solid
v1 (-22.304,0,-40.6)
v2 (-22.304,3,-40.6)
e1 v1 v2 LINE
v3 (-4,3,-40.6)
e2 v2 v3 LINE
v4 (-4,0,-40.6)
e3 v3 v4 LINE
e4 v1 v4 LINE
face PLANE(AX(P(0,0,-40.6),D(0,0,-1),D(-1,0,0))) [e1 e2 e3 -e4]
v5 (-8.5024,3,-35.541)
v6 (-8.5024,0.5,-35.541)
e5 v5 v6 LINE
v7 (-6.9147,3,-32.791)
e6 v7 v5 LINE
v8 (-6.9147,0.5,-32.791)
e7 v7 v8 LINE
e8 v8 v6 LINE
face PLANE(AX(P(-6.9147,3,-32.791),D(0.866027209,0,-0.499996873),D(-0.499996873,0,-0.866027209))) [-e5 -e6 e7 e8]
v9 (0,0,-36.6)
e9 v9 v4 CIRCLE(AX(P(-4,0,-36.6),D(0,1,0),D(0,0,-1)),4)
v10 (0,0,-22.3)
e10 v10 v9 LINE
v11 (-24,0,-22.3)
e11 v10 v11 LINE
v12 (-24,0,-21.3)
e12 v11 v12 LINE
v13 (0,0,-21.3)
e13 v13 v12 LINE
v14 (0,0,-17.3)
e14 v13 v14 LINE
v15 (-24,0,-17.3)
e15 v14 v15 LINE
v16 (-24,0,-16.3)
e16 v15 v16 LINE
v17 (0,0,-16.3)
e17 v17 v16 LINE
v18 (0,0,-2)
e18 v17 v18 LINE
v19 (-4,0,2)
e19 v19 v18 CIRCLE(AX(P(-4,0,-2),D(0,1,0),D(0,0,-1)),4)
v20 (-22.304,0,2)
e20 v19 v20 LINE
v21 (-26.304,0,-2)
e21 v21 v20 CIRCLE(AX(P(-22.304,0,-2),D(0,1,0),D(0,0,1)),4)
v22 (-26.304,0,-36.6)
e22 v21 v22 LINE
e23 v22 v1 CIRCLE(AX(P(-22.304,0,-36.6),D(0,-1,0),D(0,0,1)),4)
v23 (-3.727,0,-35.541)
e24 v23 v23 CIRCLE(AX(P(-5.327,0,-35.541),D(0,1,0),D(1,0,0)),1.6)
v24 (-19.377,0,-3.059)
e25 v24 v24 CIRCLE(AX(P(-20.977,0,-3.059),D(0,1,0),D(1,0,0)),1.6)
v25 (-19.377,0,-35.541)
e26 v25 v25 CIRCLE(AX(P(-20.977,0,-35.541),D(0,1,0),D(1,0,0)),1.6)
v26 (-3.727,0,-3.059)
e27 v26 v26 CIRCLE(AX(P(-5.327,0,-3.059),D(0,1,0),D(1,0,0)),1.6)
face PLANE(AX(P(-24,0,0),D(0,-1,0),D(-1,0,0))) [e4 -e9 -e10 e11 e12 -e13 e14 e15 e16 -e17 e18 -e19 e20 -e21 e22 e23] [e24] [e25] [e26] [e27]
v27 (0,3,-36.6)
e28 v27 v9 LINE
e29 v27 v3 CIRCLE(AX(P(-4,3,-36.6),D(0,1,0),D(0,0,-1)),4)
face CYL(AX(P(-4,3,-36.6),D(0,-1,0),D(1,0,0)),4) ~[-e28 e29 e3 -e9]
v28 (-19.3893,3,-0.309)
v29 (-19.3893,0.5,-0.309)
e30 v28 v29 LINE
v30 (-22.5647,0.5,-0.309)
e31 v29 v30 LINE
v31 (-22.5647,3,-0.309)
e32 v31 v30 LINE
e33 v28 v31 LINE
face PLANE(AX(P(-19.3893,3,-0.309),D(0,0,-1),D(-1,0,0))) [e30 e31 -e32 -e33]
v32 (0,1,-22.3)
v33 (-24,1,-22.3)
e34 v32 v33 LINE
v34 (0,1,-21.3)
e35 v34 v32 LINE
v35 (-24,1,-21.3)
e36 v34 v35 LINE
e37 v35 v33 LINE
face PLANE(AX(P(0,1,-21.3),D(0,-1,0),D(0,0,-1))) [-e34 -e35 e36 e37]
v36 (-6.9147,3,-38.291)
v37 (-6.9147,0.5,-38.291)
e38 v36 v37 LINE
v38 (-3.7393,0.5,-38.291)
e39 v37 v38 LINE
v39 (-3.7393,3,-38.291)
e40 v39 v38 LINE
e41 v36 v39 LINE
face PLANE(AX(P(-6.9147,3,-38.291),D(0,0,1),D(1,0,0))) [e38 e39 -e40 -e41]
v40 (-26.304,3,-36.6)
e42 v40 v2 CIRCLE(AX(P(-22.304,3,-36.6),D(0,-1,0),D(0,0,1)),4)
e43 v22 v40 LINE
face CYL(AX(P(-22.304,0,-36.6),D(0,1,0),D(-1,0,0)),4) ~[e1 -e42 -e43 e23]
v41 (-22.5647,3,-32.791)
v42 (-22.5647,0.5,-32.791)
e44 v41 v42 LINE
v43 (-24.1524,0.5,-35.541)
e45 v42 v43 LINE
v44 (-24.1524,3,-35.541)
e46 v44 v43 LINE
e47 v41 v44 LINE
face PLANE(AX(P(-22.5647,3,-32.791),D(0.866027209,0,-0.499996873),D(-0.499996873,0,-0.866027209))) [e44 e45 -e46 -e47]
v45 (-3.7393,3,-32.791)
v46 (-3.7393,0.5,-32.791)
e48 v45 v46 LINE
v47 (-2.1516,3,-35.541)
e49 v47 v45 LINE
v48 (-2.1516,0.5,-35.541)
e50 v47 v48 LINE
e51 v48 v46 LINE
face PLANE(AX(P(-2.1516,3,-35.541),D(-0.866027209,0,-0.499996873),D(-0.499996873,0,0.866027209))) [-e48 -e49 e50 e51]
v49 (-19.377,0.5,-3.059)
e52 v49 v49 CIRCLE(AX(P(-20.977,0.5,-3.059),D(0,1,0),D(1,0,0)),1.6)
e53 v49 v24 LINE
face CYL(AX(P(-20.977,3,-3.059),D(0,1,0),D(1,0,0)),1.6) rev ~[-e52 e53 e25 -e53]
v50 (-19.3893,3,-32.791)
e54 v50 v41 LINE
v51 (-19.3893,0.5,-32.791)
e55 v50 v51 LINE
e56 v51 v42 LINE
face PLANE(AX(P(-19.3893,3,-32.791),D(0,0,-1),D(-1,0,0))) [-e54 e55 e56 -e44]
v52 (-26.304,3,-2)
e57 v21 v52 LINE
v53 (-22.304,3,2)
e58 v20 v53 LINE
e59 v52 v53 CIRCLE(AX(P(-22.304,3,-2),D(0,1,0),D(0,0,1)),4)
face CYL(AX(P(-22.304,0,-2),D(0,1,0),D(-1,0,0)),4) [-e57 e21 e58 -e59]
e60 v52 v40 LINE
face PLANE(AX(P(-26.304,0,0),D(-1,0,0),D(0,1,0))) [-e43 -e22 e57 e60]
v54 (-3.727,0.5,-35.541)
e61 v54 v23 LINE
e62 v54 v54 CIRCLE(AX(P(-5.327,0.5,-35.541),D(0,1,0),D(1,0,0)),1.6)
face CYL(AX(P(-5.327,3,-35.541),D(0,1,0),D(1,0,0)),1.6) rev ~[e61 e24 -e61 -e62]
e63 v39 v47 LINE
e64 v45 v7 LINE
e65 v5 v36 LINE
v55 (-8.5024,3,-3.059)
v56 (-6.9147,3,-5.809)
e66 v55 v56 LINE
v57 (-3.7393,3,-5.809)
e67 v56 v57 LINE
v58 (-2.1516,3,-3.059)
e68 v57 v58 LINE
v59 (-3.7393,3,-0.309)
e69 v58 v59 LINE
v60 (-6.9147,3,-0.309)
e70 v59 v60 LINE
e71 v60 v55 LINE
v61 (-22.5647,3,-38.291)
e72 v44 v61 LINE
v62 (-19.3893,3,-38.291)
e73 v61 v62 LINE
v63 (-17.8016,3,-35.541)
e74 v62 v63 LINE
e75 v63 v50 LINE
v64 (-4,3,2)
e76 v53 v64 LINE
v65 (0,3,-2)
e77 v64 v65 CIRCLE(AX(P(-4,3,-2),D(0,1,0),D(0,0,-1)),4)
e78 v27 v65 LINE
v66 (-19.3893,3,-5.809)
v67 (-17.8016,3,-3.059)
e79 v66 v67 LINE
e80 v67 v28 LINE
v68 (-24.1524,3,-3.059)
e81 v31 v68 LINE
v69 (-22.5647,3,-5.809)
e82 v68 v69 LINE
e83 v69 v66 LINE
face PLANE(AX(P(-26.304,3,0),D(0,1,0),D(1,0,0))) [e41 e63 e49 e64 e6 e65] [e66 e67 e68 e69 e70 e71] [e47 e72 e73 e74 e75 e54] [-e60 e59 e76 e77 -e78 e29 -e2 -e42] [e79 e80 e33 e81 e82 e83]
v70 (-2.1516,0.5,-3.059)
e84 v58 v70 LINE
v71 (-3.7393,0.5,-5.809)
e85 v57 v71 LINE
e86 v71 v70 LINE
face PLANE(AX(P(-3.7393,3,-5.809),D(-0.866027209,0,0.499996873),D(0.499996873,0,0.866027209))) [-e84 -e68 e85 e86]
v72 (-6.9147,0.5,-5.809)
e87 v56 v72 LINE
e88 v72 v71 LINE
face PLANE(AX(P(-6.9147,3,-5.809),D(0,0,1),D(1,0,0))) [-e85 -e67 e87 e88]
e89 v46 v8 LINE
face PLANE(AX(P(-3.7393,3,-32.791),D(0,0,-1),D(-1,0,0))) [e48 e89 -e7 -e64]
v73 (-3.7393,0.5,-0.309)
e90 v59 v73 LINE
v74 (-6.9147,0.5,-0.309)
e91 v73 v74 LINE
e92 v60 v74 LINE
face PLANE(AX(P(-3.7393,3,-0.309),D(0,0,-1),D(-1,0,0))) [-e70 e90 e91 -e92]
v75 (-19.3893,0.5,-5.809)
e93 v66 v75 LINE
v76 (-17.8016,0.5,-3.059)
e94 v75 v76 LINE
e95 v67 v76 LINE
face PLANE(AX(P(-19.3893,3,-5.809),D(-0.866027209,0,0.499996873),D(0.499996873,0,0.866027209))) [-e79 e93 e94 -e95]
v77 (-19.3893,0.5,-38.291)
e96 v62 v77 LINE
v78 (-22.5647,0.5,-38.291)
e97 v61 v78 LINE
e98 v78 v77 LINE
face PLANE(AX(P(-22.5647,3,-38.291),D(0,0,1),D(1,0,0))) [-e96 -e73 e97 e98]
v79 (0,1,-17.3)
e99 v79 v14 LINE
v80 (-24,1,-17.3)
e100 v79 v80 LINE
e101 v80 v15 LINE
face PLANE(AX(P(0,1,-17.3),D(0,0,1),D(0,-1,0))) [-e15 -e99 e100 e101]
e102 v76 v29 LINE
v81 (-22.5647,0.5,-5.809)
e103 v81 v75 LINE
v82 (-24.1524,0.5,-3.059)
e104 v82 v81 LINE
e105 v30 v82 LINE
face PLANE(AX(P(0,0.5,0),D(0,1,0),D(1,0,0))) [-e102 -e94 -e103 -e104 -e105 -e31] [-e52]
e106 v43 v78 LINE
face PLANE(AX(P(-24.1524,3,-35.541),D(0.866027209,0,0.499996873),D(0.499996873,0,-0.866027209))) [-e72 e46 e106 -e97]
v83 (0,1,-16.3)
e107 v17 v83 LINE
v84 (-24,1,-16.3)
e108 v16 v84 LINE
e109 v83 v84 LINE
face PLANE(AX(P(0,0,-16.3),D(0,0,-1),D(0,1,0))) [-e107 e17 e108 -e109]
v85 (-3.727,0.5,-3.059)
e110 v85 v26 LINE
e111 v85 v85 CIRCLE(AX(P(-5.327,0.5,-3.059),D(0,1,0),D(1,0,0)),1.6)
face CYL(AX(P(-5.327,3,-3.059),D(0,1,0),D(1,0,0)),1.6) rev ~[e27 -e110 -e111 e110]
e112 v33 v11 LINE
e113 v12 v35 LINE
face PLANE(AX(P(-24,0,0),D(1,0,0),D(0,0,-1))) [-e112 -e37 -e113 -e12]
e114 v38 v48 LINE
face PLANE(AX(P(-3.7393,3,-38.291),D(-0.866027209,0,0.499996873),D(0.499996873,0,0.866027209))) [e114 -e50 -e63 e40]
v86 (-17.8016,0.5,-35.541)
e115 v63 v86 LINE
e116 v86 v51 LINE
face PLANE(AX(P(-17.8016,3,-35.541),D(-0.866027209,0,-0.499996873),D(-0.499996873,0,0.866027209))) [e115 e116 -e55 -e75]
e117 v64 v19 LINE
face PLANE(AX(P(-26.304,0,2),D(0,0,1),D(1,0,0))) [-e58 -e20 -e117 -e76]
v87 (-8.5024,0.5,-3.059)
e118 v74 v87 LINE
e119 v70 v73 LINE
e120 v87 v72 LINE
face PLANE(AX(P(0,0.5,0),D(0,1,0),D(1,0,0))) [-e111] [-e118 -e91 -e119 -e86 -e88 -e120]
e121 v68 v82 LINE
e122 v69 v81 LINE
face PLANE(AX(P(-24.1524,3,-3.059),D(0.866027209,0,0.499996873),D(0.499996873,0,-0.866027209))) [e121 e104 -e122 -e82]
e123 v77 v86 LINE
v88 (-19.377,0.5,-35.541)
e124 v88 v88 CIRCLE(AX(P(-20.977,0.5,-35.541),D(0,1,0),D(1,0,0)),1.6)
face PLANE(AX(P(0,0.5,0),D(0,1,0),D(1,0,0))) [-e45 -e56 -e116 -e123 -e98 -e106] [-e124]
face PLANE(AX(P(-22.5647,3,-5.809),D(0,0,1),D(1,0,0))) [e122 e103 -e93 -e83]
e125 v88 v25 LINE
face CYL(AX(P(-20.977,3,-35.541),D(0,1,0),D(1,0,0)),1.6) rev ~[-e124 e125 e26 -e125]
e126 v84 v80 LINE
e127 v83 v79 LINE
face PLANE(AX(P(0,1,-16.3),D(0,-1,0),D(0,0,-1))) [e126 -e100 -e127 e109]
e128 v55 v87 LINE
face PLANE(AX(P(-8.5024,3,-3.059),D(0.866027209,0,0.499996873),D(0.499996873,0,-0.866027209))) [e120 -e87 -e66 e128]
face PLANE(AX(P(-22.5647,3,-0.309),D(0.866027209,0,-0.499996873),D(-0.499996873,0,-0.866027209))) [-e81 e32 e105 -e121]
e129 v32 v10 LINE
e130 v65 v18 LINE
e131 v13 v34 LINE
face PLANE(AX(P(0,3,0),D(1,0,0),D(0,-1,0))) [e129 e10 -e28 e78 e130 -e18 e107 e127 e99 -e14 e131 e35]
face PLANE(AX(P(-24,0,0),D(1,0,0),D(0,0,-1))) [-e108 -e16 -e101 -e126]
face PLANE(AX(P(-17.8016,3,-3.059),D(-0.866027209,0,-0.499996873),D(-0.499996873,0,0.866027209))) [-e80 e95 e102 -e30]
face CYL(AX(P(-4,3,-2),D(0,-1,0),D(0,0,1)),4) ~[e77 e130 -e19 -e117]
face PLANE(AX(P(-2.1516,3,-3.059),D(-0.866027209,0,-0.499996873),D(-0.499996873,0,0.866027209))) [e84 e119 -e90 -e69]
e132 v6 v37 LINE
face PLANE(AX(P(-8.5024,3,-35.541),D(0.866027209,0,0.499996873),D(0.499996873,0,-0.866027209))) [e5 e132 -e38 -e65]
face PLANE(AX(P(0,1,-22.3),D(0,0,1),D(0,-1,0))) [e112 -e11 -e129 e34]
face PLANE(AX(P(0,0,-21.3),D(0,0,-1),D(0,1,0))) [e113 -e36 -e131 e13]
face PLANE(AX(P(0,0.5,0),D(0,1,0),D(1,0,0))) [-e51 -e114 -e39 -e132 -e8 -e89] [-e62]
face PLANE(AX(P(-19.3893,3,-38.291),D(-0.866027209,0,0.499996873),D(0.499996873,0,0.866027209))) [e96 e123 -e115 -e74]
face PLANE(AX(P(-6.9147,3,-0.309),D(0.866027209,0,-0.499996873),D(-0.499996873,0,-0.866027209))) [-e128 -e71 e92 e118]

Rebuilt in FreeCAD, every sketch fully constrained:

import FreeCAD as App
import Part
import Sketcher

V = App.Vector
Q = App.Units.Quantity


def edges_at(feature, points):
    """Names of the edges that pass closest to the given points."""
    edges = feature.Shape.Edges
    near = lambda p: min(range(len(edges)), key=lambda i: edges[i].distToShape(Part.Vertex(*p))[0])
    return sorted({f"Edge{near(p) + 1}" for p in points})

doc = App.newDocument("Part")
body = doc.addObject("PartDesign::Body", "Body")

sketch1 = doc.addObject("Sketcher::SketchObject", "Sketch")
body.addObject(sketch1)
sketch1.AttachmentSupport = (doc.XZ_Plane, [""])
sketch1.MapMode = "FlatFace"
sketch1.addGeometry([
    Part.LineSegment(V(-26.304, 0, 0), V(0, 0, 0)),
    Part.LineSegment(V(0, 0, 0), V(0, -38.6, 0)),
    Part.LineSegment(V(0, -38.6, 0), V(-26.304, -38.6, 0)),
    Part.LineSegment(V(-26.304, -38.6, 0), V(-26.304, 0, 0)),
], False)
sketch1.addConstraint([
    Sketcher.Constraint("Coincident", 0, 2, 1, 1),
    Sketcher.Constraint("Coincident", 1, 2, 2, 1),
    Sketcher.Constraint("Coincident", 2, 2, 3, 1),
    Sketcher.Constraint("Coincident", 3, 2, 0, 1),
    Sketcher.Constraint("Horizontal", 0),
    Sketcher.Constraint("Vertical", 1),
    Sketcher.Constraint("Horizontal", 2),
    Sketcher.Constraint("Vertical", 3),
    Sketcher.Constraint("Coincident", 0, 2, -1, 1),
    Sketcher.Constraint("DistanceY", 1, 2, 1, 1, Q("38.6 mm")),
    Sketcher.Constraint("DistanceX", 0, 1, 0, 2, Q("26.304 mm")),
])
pad1 = doc.addObject("PartDesign::Pad", "Pad")
body.addObject(pad1)
pad1.Profile = sketch1
pad1.Length = 3
pad1.Reversed = True

sketch2 = doc.addObject("Sketcher::SketchObject", "Sketch001")
body.addObject(sketch2)
sketch2.AttachmentSupport = (doc.XZ_Plane, [""])
sketch2.MapMode = "FlatFace"
sketch2.AttachmentOffset = App.Placement(V(0, 0, -3), App.Rotation())
sketch2.addGeometry([
    Part.LineSegment(V(-17.8016, -3.059, 0), V(-19.3893, -5.809, 0)),
    Part.LineSegment(V(-19.3893, -5.809, 0), V(-22.5647, -5.809, 0)),
    Part.LineSegment(V(-22.5647, -5.809, 0), V(-24.1524, -3.059, 0)),
    Part.LineSegment(V(-24.1524, -3.059, 0), V(-22.5647, -0.309, 0)),
    Part.LineSegment(V(-22.5647, -0.309, 0), V(-19.3893, -0.309, 0)),
    Part.LineSegment(V(-19.3893, -0.309, 0), V(-17.8016, -3.059, 0)),
    Part.LineSegment(V(-17.8016, -35.541, 0), V(-19.3893, -38.291, 0)),
    Part.LineSegment(V(-19.3893, -38.291, 0), V(-22.5647, -38.291, 0)),
    Part.LineSegment(V(-22.5647, -38.291, 0), V(-24.1524, -35.541, 0)),
    Part.LineSegment(V(-24.1524, -35.541, 0), V(-22.5647, -32.791, 0)),
    Part.LineSegment(V(-22.5647, -32.791, 0), V(-19.3893, -32.791, 0)),
    Part.LineSegment(V(-19.3893, -32.791, 0), V(-17.8016, -35.541, 0)),
    Part.LineSegment(V(-2.1516, -3.059, 0), V(-3.7393, -5.809, 0)),
    Part.LineSegment(V(-3.7393, -5.809, 0), V(-6.9147, -5.809, 0)),
    Part.LineSegment(V(-6.9147, -5.809, 0), V(-8.5024, -3.059, 0)),
    Part.LineSegment(V(-8.5024, -3.059, 0), V(-6.9147, -0.309, 0)),
    Part.LineSegment(V(-6.9147, -0.309, 0), V(-3.7393, -0.309, 0)),
    Part.LineSegment(V(-3.7393, -0.309, 0), V(-2.1516, -3.059, 0)),
    Part.LineSegment(V(-2.1516, -35.541, 0), V(-3.7393, -38.291, 0)),
    Part.LineSegment(V(-3.7393, -38.291, 0), V(-6.9147, -38.291, 0)),
    Part.LineSegment(V(-6.9147, -38.291, 0), V(-8.5024, -35.541, 0)),
    Part.LineSegment(V(-8.5024, -35.541, 0), V(-6.9147, -32.791, 0)),
    Part.LineSegment(V(-6.9147, -32.791, 0), V(-3.7393, -32.791, 0)),
    Part.LineSegment(V(-3.7393, -32.791, 0), V(-2.1516, -35.541, 0)),
], False)
sketch2.addConstraint([
    Sketcher.Constraint("Coincident", 0, 2, 1, 1),
    Sketcher.Constraint("Coincident", 1, 2, 2, 1),
    Sketcher.Constraint("Coincident", 2, 2, 3, 1),
    Sketcher.Constraint("Coincident", 3, 2, 4, 1),
    Sketcher.Constraint("Coincident", 4, 2, 5, 1),
    Sketcher.Constraint("Coincident", 5, 2, 0, 1),
    Sketcher.Constraint("Coincident", 6, 2, 7, 1),
    Sketcher.Constraint("Coincident", 7, 2, 8, 1),
    Sketcher.Constraint("Coincident", 8, 2, 9, 1),
    Sketcher.Constraint("Coincident", 9, 2, 10, 1),
    Sketcher.Constraint("Coincident", 10, 2, 11, 1),
    Sketcher.Constraint("Coincident", 11, 2, 6, 1),
    Sketcher.Constraint("Coincident", 12, 2, 13, 1),
    Sketcher.Constraint("Coincident", 13, 2, 14, 1),
    Sketcher.Constraint("Coincident", 14, 2, 15, 1),
    Sketcher.Constraint("Coincident", 15, 2, 16, 1),
    Sketcher.Constraint("Coincident", 16, 2, 17, 1),
    Sketcher.Constraint("Coincident", 17, 2, 12, 1),
    Sketcher.Constraint("Coincident", 18, 2, 19, 1),
    Sketcher.Constraint("Coincident", 19, 2, 20, 1),
    Sketcher.Constraint("Coincident", 20, 2, 21, 1),
    Sketcher.Constraint("Coincident", 21, 2, 22, 1),
    Sketcher.Constraint("Coincident", 22, 2, 23, 1),
    Sketcher.Constraint("Coincident", 23, 2, 18, 1),
    Sketcher.Constraint("Horizontal", 1),
    Sketcher.Constraint("Horizontal", 4),
    Sketcher.Constraint("Horizontal", 7),
    Sketcher.Constraint("Horizontal", 10),
    Sketcher.Constraint("Horizontal", 13),
    Sketcher.Constraint("Horizontal", 16),
    Sketcher.Constraint("Horizontal", 19),
    Sketcher.Constraint("Horizontal", 22),
    Sketcher.Constraint("Parallel", 0, 3),
    Sketcher.Constraint("Parallel", 2, 5),
    Sketcher.Constraint("Parallel", 3, 6),
    Sketcher.Constraint("Parallel", 5, 8),
    Sketcher.Constraint("Parallel", 6, 9),
    Sketcher.Constraint("Parallel", 8, 11),
    Sketcher.Constraint("Parallel", 9, 12),
    Sketcher.Constraint("Parallel", 11, 14),
    Sketcher.Constraint("Parallel", 12, 15),
    Sketcher.Constraint("Parallel", 14, 17),
    Sketcher.Constraint("Parallel", 15, 18),
    Sketcher.Constraint("Parallel", 17, 20),
    Sketcher.Constraint("Parallel", 18, 21),
    Sketcher.Constraint("Parallel", 20, 23),
    Sketcher.Constraint("Horizontal", 2, 2, 5, 2),
    Sketcher.Constraint("Horizontal", 8, 2, 11, 2),
    Sketcher.Constraint("Horizontal", 1, 2, 12, 2),
    Sketcher.Constraint("Horizontal", 5, 2, 14, 2),
    Sketcher.Constraint("Horizontal", 4, 2, 15, 2),
    Sketcher.Constraint("Horizontal", 14, 2, 17, 2),
    Sketcher.Constraint("Horizontal", 7, 2, 18, 2),
    Sketcher.Constraint("Horizontal", 11, 2, 20, 2),
    Sketcher.Constraint("Horizontal", 10, 2, 21, 2),
    Sketcher.Constraint("Horizontal", 20, 2, 23, 2),
    Sketcher.Constraint("Vertical", 1, 2, 3, 2),
    Sketcher.Constraint("Vertical", 0, 2, 4, 2),
    Sketcher.Constraint("Vertical", 4, 2, 6, 2),
    Sketcher.Constraint("Vertical", 3, 2, 7, 2),
    Sketcher.Constraint("Vertical", 2, 2, 8, 2),
    Sketcher.Constraint("Vertical", 7, 2, 9, 2),
    Sketcher.Constraint("Vertical", 16, 2, 18, 2),
    Sketcher.Constraint("Vertical", 15, 2, 19, 2),
    Sketcher.Constraint("Equal", 10, 13),
    Sketcher.Constraint("DistanceY", 1, 2, 3, 2, Q("5.5 mm")),
    Sketcher.Constraint("Angle", 0, Q("-119.9998 deg")),
    Sketcher.Constraint("DistanceX", 0, 2, 12, 2, Q("15.65 mm")),
    Sketcher.Constraint("DistanceY", 2, 2, -1, 1, Q("3.059 mm")),
    Sketcher.Constraint("DistanceY", 6, 2, 0, 2, Q("32.482 mm")),
    Sketcher.Constraint("DistanceX", 1, 2, 1, 1, Q("3.1754 mm")),
    Sketcher.Constraint("DistanceX", 0, 2, -1, 1, Q("19.3893 mm")),
])
pocket1 = doc.addObject("PartDesign::Pocket", "Pocket")
body.addObject(pocket1)
pocket1.Profile = sketch2
pocket1.Length = 2.5
pocket1.Reversed = True

sketch3 = doc.addObject("Sketcher::SketchObject", "Sketch002")
body.addObject(sketch3)
sketch3.AttachmentSupport = (doc.YZ_Plane, [""])
sketch3.MapMode = "FlatFace"
sketch3.addGeometry([
    Part.LineSegment(V(1, -21.3, 0), V(0, -21.3, 0)),
    Part.LineSegment(V(0, -21.3, 0), V(0, -22.3, 0)),
    Part.LineSegment(V(0, -22.3, 0), V(1, -22.3, 0)),
    Part.LineSegment(V(1, -22.3, 0), V(1, -21.3, 0)),
    Part.LineSegment(V(1, -17.3, 0), V(1, -16.3, 0)),
    Part.LineSegment(V(1, -16.3, 0), V(0, -16.3, 0)),
    Part.LineSegment(V(0, -16.3, 0), V(0, -17.3, 0)),
    Part.LineSegment(V(0, -17.3, 0), V(1, -17.3, 0)),
], False)
sketch3.addConstraint([
    Sketcher.Constraint("Coincident", 0, 2, 1, 1),
    Sketcher.Constraint("Coincident", 1, 2, 2, 1),
    Sketcher.Constraint("Coincident", 2, 2, 3, 1),
    Sketcher.Constraint("Coincident", 3, 2, 0, 1),
    Sketcher.Constraint("Coincident", 4, 2, 5, 1),
    Sketcher.Constraint("Coincident", 5, 2, 6, 1),
    Sketcher.Constraint("Coincident", 6, 2, 7, 1),
    Sketcher.Constraint("Coincident", 7, 2, 4, 1),
    Sketcher.Constraint("Horizontal", 0),
    Sketcher.Constraint("Vertical", 1),
    Sketcher.Constraint("Horizontal", 2),
    Sketcher.Constraint("Vertical", 3),
    Sketcher.Constraint("Vertical", 4),
    Sketcher.Constraint("Horizontal", 5),
    Sketcher.Constraint("Vertical", 6),
    Sketcher.Constraint("Horizontal", 7),
    Sketcher.Constraint("PointOnObject", 0, 2, -2),
    Sketcher.Constraint("PointOnObject", 5, 2, -2),
    Sketcher.Constraint("Vertical", 3, 2, 4, 2),
    Sketcher.Constraint("Equal", 7, 1),
    Sketcher.Constraint("Equal", 3, 4),
    Sketcher.Constraint("DistanceX", 0, 2, 0, 1, Q("1 mm")),
    Sketcher.Constraint("DistanceY", 0, 2, 6, 2, Q("4 mm")),
    Sketcher.Constraint("DistanceY", 4, 2, -1, 1, Q("16.3 mm")),
])
pocket2 = doc.addObject("PartDesign::Pocket", "Pocket001")
body.addObject(pocket2)
pocket2.Profile = sketch3
pocket2.Length = 24

sketch4 = doc.addObject("Sketcher::SketchObject", "Sketch003")
body.addObject(sketch4)
sketch4.AttachmentSupport = (doc.XZ_Plane, [""])
sketch4.MapMode = "FlatFace"
sketch4.AttachmentOffset = App.Placement(V(0, 0, -3), App.Rotation())
sketch4.addGeometry([
    Part.Circle(V(-20.977, -3.059, 0), V(0, 0, 1), 1.6),
    Part.Circle(V(-20.977, -35.541, 0), V(0, 0, 1), 1.6),
    Part.Circle(V(-5.327, -35.541, 0), V(0, 0, 1), 1.6),
    Part.Circle(V(-5.327, -3.059, 0), V(0, 0, 1), 1.6),
], False)
sketch4.addConstraint([
    Sketcher.Constraint("Equal", 0, 1),
    Sketcher.Constraint("Equal", 1, 2),
    Sketcher.Constraint("Equal", 2, 3),
    Sketcher.Constraint("Horizontal", 1, 3, 2, 3),
    Sketcher.Constraint("Horizontal", 0, 3, 3, 3),
    Sketcher.Constraint("Vertical", 0, 3, 1, 3),
    Sketcher.Constraint("Vertical", 2, 3, 3, 3),
    Sketcher.Constraint("Diameter", 0, Q("3.2 mm")),
    Sketcher.Constraint("DistanceX", 1, 3, 2, 3, Q("15.65 mm")),
    Sketcher.Constraint("DistanceX", 0, 3, -1, 1, Q("20.977 mm")),
    Sketcher.Constraint("DistanceY", 0, 3, -1, 1, Q("3.059 mm")),
    Sketcher.Constraint("DistanceY", 1, 3, -1, 1, Q("35.541 mm")),
])
pocket3 = doc.addObject("PartDesign::Pocket", "Pocket002")
body.addObject(pocket3)
pocket3.Profile = sketch4
pocket3.Type = "ThroughAll"
pocket3.Reversed = True

sketch5 = doc.addObject("Sketcher::SketchObject", "Sketch004")
body.addObject(sketch5)
sketch5.AttachmentSupport = (doc.XY_Plane, [""])
sketch5.MapMode = "FlatFace"
sketch5.AttachmentOffset = App.Placement(V(0, 0, -38.6), App.Rotation())
sketch5.addGeometry([
    Part.LineSegment(V(0, 3, 0), V(0, 0, 0)),
    Part.LineSegment(V(0, 0, 0), V(-26.304, 0, 0)),
    Part.LineSegment(V(-26.304, 0, 0), V(-26.304, 3, 0)),
    Part.LineSegment(V(-26.304, 3, 0), V(0, 3, 0)),
], False)
sketch5.addConstraint([
    Sketcher.Constraint("Coincident", 0, 2, 1, 1),
    Sketcher.Constraint("Coincident", 1, 2, 2, 1),
    Sketcher.Constraint("Coincident", 2, 2, 3, 1),
    Sketcher.Constraint("Coincident", 3, 2, 0, 1),
    Sketcher.Constraint("Vertical", 0),
    Sketcher.Constraint("Horizontal", 1),
    Sketcher.Constraint("Vertical", 2),
    Sketcher.Constraint("Horizontal", 3),
    Sketcher.Constraint("Coincident", 0, 2, -1, 1),
    Sketcher.Constraint("DistanceY", 0, 2, 0, 1, Q("3 mm")),
    Sketcher.Constraint("DistanceX", 1, 2, 1, 1, Q("26.304 mm")),
])
pad2 = doc.addObject("PartDesign::Pad", "Pad001")
body.addObject(pad2)
pad2.Profile = sketch5
pad2.Length = 2
pad2.Reversed = True

sketch6 = doc.addObject("Sketcher::SketchObject", "Sketch005")
body.addObject(sketch6)
sketch6.AttachmentSupport = (doc.XY_Plane, [""])
sketch6.MapMode = "FlatFace"
sketch6.addGeometry([
    Part.LineSegment(V(-26.304, 0, 0), V(0, 0, 0)),
    Part.LineSegment(V(0, 0, 0), V(0, 3, 0)),
    Part.LineSegment(V(0, 3, 0), V(-26.304, 3, 0)),
    Part.LineSegment(V(-26.304, 3, 0), V(-26.304, 0, 0)),
], False)
sketch6.addConstraint([
    Sketcher.Constraint("Coincident", 0, 2, 1, 1),
    Sketcher.Constraint("Coincident", 1, 2, 2, 1),
    Sketcher.Constraint("Coincident", 2, 2, 3, 1),
    Sketcher.Constraint("Coincident", 3, 2, 0, 1),
    Sketcher.Constraint("Horizontal", 0),
    Sketcher.Constraint("Vertical", 1),
    Sketcher.Constraint("Horizontal", 2),
    Sketcher.Constraint("Vertical", 3),
    Sketcher.Constraint("Coincident", 0, 2, -1, 1),
    Sketcher.Constraint("DistanceY", 1, 1, 1, 2, Q("3 mm")),
    Sketcher.Constraint("DistanceX", 0, 1, 0, 2, Q("26.304 mm")),
])
pad3 = doc.addObject("PartDesign::Pad", "Pad002")
body.addObject(pad3)
pad3.Profile = sketch6
pad3.Length = 2
doc.recompute()

fillet = doc.addObject("PartDesign::Fillet", "Fillet")
body.addObject(fillet)
fillet.Base = (pad3, edges_at(pad3, [
    (-26.304, 1.5, -40.6),
    (0, 1.5, -40.6),
    (0, 1.5, 2),
    (-26.304, 1.5, 2),
]))
fillet.Radius = 4

doc.recompute()
